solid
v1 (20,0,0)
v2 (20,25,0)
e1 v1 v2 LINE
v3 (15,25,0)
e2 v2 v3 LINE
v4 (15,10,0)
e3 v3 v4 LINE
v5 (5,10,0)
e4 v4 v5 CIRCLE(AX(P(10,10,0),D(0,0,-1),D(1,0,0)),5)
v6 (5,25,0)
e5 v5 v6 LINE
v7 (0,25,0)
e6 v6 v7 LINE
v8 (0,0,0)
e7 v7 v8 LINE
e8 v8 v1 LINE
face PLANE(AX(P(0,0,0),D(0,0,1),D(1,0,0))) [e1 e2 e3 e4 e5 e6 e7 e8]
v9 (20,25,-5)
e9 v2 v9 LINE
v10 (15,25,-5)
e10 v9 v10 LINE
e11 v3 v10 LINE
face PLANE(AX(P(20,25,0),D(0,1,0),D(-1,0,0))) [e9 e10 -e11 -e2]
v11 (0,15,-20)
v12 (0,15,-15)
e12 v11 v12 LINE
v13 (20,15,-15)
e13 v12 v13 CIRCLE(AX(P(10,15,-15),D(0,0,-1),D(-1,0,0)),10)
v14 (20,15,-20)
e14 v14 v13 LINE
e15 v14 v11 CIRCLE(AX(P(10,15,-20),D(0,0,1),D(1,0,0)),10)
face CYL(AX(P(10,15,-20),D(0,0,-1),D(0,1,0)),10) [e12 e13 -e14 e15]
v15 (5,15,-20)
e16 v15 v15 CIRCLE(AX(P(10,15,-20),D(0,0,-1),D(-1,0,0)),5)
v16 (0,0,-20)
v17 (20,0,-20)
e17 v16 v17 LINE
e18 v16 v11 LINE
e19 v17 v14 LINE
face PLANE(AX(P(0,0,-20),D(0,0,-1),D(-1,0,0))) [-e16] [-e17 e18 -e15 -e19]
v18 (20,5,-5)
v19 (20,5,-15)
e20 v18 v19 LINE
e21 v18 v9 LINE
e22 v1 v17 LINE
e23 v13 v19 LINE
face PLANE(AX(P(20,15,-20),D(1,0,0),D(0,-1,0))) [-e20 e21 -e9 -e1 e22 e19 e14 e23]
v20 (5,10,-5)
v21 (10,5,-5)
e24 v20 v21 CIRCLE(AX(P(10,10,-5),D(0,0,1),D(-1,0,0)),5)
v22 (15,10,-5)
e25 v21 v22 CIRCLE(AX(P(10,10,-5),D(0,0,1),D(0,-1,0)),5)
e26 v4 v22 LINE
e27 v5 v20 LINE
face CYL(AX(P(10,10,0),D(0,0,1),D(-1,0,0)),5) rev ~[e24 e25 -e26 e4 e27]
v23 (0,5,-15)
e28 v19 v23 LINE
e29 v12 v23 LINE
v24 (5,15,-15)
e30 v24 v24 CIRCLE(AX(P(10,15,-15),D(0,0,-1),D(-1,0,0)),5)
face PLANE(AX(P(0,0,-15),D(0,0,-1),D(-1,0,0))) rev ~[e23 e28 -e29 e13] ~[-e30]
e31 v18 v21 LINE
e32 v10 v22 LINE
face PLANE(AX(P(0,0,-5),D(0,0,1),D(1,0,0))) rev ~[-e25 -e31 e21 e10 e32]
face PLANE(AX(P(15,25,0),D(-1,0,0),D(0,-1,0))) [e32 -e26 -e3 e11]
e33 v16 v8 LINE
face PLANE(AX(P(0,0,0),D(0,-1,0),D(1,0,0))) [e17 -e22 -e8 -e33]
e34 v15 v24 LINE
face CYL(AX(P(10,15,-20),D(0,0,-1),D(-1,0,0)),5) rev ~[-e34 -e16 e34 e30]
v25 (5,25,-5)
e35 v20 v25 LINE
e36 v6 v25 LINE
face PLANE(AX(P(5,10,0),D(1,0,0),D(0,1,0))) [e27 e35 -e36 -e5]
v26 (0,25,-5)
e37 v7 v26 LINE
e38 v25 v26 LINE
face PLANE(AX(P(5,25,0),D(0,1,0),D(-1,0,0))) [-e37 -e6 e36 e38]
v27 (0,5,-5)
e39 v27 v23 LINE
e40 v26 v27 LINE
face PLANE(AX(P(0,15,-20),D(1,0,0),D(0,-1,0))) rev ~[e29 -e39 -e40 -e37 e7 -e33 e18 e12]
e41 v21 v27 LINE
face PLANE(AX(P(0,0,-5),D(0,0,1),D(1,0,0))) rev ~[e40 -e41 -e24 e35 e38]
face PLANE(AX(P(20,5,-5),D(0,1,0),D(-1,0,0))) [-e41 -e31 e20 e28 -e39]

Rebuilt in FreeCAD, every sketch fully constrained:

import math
import FreeCAD as App
import Part
import Sketcher

doc = App.newDocument("Part")
body = doc.addObject("PartDesign::Body", "Body")

# Sketch on XY plane
sketch1 = doc.addObject("Sketcher::SketchObject", "Sketch")
body.addObject(sketch1)
sketch1.AttachmentSupport = (doc.XY_Plane, [""])
sketch1.MapMode = "FlatFace"
sketch1.addGeometry([
    Part.LineSegment(App.Vector(0, 25, 0), App.Vector(0, 0, 0)),  # 0
    Part.LineSegment(App.Vector(0, 0, 0), App.Vector(20, 0, 0)),  # 1
    Part.LineSegment(App.Vector(20, 0, 0), App.Vector(20, 25, 0)),  # 2
    Part.LineSegment(App.Vector(20, 25, 0), App.Vector(15, 25, 0)),  # 3
    Part.LineSegment(App.Vector(15, 25, 0), App.Vector(15, 10, 0)),  # 4
    Part.ArcOfCircle(Part.Circle(App.Vector(10, 10, 0), App.Vector(0, 0, 1), 5), math.radians(180), math.radians(360)),  # 5
    Part.LineSegment(App.Vector(5, 10, 0), App.Vector(5, 25, 0)),  # 6
    Part.LineSegment(App.Vector(5, 25, 0), App.Vector(0, 25, 0)),  # 7
], False)
sketch1.addConstraint([
    Sketcher.Constraint("Coincident", 0, 2, 1, 1),
    Sketcher.Constraint("Coincident", 1, 2, 2, 1),
    Sketcher.Constraint("Coincident", 2, 2, 3, 1),
    Sketcher.Constraint("Coincident", 3, 2, 4, 1),
    Sketcher.Constraint("Tangent", 4, 2, 5, 2),
    Sketcher.Constraint("Tangent", 5, 1, 6, 1),
    Sketcher.Constraint("Coincident", 6, 2, 7, 1),
    Sketcher.Constraint("Coincident", 7, 2, 0, 1),
    Sketcher.Constraint("Vertical", 0),
    Sketcher.Constraint("Horizontal", 1),
    Sketcher.Constraint("Vertical", 2),
    Sketcher.Constraint("Horizontal", 3),
    Sketcher.Constraint("Vertical", 4),
    Sketcher.Constraint("Vertical", 6),
    Sketcher.Constraint("Horizontal", 7),
    Sketcher.Constraint("Coincident", 0, 2, -1, 1),
    Sketcher.Constraint("Horizontal", 3, 2, 6, 2),
    Sketcher.Constraint("Equal", 3, 7),
    Sketcher.Constraint("Radius", 5, 5.0),
    Sketcher.Constraint("DistanceX", 1, 1, 1, 2, 20.0),
    Sketcher.Constraint("DistanceY", 0, 2, 0, 1, 25.0),
    Sketcher.Constraint("DistanceY", -1, 1, 5, 3, 10.0),
])
pad1 = doc.addObject("PartDesign::Pad", "Pad")
body.addObject(pad1)
pad1.Profile = sketch1
pad1.Length = 5
pad1.Reversed = True

# Sketch on XY plane
sketch2 = doc.addObject("Sketcher::SketchObject", "Sketch001")
body.addObject(sketch2)
sketch2.AttachmentSupport = (doc.XY_Plane, [""])
sketch2.MapMode = "FlatFace"
sketch2.AttachmentOffset = App.Placement(App.Vector(0, 0, -5), App.Rotation())
sketch2.addGeometry([
    Part.LineSegment(App.Vector(0, 0, 0), App.Vector(0, 5, 0)),
    Part.LineSegment(App.Vector(0, 5, 0), App.Vector(20, 5, 0)),
    Part.LineSegment(App.Vector(20, 5, 0), App.Vector(20, 0, 0)),
    Part.LineSegment(App.Vector(20, 0, 0), App.Vector(0, 0, 0)),
], False)
sketch2.addConstraint([
    Sketcher.Constraint("Coincident", 0, 2, 1, 1),
    Sketcher.Constraint("Coincident", 1, 2, 2, 1),
    Sketcher.Constraint("Coincident", 2, 2, 3, 1),
    Sketcher.Constraint("Coincident", 3, 2, 0, 1),
    Sketcher.Constraint("Vertical", 0),
    Sketcher.Constraint("Horizontal", 1),
    Sketcher.Constraint("Vertical", 2),
    Sketcher.Constraint("Horizontal", 3),
    Sketcher.Constraint("Coincident", 3, 2, -1, 1),
    Sketcher.Constraint("DistanceY", 0, 1, 0, 2, 5.0),
    Sketcher.Constraint("DistanceX", 1, 1, 1, 2, 20.0),
])
pad2 = doc.addObject("PartDesign::Pad", "Pad001")
body.addObject(pad2)
pad2.Profile = sketch2
pad2.Length = 15
pad2.Reversed = True

# Sketch on XY plane
sketch3 = doc.addObject("Sketcher::SketchObject", "Sketch002")
body.addObject(sketch3)
sketch3.AttachmentSupport = (doc.XY_Plane, [""])
sketch3.MapMode = "FlatFace"
sketch3.AttachmentOffset = App.Placement(App.Vector(0, 0, -20), App.Rotation())
sketch3.addGeometry([
    Part.ArcOfCircle(Part.Circle(App.Vector(10, 15, 0), App.Vector(0, 0, 1), 10), math.radians(0), math.radians(180)),  # 0
    Part.LineSegment(App.Vector(20, 15, 0), App.Vector(20, 0, 0)),  # 1
    Part.LineSegment(App.Vector(20, 0, 0), App.Vector(0, 0, 0)),  # 2
    Part.LineSegment(App.Vector(0, 0, 0), App.Vector(0, 15, 0)),  # 3
    Part.Circle(App.Vector(10, 15, 0), App.Vector(0, 0, 1), 5),  # 4
], False)
sketch3.addConstraint([
    Sketcher.Constraint("Tangent", 0, 1, 1, 1),
    Sketcher.Constraint("Coincident", 1, 2, 2, 1),
    Sketcher.Constraint("Coincident", 2, 2, 3, 1),
    Sketcher.Constraint("Tangent", 3, 2, 0, 2),
    Sketcher.Constraint("Vertical", 1),
    Sketcher.Constraint("Horizontal", 2),
    Sketcher.Constraint("Vertical", 3),
    Sketcher.Constraint("Coincident", 2, 2, -1, 1),
    Sketcher.Constraint("Coincident", 4, 3, 0, 3),
    Sketcher.Constraint("Diameter", 4, 10.0),
    Sketcher.Constraint("Radius", 0, 10.0),
    Sketcher.Constraint("DistanceY", 1, 2, 1, 1, 15.0),
])
pad3 = doc.addObject("PartDesign::Pad", "Pad002")
body.addObject(pad3)
pad3.Profile = sketch3
pad3.Length = 5

doc.recompute()
